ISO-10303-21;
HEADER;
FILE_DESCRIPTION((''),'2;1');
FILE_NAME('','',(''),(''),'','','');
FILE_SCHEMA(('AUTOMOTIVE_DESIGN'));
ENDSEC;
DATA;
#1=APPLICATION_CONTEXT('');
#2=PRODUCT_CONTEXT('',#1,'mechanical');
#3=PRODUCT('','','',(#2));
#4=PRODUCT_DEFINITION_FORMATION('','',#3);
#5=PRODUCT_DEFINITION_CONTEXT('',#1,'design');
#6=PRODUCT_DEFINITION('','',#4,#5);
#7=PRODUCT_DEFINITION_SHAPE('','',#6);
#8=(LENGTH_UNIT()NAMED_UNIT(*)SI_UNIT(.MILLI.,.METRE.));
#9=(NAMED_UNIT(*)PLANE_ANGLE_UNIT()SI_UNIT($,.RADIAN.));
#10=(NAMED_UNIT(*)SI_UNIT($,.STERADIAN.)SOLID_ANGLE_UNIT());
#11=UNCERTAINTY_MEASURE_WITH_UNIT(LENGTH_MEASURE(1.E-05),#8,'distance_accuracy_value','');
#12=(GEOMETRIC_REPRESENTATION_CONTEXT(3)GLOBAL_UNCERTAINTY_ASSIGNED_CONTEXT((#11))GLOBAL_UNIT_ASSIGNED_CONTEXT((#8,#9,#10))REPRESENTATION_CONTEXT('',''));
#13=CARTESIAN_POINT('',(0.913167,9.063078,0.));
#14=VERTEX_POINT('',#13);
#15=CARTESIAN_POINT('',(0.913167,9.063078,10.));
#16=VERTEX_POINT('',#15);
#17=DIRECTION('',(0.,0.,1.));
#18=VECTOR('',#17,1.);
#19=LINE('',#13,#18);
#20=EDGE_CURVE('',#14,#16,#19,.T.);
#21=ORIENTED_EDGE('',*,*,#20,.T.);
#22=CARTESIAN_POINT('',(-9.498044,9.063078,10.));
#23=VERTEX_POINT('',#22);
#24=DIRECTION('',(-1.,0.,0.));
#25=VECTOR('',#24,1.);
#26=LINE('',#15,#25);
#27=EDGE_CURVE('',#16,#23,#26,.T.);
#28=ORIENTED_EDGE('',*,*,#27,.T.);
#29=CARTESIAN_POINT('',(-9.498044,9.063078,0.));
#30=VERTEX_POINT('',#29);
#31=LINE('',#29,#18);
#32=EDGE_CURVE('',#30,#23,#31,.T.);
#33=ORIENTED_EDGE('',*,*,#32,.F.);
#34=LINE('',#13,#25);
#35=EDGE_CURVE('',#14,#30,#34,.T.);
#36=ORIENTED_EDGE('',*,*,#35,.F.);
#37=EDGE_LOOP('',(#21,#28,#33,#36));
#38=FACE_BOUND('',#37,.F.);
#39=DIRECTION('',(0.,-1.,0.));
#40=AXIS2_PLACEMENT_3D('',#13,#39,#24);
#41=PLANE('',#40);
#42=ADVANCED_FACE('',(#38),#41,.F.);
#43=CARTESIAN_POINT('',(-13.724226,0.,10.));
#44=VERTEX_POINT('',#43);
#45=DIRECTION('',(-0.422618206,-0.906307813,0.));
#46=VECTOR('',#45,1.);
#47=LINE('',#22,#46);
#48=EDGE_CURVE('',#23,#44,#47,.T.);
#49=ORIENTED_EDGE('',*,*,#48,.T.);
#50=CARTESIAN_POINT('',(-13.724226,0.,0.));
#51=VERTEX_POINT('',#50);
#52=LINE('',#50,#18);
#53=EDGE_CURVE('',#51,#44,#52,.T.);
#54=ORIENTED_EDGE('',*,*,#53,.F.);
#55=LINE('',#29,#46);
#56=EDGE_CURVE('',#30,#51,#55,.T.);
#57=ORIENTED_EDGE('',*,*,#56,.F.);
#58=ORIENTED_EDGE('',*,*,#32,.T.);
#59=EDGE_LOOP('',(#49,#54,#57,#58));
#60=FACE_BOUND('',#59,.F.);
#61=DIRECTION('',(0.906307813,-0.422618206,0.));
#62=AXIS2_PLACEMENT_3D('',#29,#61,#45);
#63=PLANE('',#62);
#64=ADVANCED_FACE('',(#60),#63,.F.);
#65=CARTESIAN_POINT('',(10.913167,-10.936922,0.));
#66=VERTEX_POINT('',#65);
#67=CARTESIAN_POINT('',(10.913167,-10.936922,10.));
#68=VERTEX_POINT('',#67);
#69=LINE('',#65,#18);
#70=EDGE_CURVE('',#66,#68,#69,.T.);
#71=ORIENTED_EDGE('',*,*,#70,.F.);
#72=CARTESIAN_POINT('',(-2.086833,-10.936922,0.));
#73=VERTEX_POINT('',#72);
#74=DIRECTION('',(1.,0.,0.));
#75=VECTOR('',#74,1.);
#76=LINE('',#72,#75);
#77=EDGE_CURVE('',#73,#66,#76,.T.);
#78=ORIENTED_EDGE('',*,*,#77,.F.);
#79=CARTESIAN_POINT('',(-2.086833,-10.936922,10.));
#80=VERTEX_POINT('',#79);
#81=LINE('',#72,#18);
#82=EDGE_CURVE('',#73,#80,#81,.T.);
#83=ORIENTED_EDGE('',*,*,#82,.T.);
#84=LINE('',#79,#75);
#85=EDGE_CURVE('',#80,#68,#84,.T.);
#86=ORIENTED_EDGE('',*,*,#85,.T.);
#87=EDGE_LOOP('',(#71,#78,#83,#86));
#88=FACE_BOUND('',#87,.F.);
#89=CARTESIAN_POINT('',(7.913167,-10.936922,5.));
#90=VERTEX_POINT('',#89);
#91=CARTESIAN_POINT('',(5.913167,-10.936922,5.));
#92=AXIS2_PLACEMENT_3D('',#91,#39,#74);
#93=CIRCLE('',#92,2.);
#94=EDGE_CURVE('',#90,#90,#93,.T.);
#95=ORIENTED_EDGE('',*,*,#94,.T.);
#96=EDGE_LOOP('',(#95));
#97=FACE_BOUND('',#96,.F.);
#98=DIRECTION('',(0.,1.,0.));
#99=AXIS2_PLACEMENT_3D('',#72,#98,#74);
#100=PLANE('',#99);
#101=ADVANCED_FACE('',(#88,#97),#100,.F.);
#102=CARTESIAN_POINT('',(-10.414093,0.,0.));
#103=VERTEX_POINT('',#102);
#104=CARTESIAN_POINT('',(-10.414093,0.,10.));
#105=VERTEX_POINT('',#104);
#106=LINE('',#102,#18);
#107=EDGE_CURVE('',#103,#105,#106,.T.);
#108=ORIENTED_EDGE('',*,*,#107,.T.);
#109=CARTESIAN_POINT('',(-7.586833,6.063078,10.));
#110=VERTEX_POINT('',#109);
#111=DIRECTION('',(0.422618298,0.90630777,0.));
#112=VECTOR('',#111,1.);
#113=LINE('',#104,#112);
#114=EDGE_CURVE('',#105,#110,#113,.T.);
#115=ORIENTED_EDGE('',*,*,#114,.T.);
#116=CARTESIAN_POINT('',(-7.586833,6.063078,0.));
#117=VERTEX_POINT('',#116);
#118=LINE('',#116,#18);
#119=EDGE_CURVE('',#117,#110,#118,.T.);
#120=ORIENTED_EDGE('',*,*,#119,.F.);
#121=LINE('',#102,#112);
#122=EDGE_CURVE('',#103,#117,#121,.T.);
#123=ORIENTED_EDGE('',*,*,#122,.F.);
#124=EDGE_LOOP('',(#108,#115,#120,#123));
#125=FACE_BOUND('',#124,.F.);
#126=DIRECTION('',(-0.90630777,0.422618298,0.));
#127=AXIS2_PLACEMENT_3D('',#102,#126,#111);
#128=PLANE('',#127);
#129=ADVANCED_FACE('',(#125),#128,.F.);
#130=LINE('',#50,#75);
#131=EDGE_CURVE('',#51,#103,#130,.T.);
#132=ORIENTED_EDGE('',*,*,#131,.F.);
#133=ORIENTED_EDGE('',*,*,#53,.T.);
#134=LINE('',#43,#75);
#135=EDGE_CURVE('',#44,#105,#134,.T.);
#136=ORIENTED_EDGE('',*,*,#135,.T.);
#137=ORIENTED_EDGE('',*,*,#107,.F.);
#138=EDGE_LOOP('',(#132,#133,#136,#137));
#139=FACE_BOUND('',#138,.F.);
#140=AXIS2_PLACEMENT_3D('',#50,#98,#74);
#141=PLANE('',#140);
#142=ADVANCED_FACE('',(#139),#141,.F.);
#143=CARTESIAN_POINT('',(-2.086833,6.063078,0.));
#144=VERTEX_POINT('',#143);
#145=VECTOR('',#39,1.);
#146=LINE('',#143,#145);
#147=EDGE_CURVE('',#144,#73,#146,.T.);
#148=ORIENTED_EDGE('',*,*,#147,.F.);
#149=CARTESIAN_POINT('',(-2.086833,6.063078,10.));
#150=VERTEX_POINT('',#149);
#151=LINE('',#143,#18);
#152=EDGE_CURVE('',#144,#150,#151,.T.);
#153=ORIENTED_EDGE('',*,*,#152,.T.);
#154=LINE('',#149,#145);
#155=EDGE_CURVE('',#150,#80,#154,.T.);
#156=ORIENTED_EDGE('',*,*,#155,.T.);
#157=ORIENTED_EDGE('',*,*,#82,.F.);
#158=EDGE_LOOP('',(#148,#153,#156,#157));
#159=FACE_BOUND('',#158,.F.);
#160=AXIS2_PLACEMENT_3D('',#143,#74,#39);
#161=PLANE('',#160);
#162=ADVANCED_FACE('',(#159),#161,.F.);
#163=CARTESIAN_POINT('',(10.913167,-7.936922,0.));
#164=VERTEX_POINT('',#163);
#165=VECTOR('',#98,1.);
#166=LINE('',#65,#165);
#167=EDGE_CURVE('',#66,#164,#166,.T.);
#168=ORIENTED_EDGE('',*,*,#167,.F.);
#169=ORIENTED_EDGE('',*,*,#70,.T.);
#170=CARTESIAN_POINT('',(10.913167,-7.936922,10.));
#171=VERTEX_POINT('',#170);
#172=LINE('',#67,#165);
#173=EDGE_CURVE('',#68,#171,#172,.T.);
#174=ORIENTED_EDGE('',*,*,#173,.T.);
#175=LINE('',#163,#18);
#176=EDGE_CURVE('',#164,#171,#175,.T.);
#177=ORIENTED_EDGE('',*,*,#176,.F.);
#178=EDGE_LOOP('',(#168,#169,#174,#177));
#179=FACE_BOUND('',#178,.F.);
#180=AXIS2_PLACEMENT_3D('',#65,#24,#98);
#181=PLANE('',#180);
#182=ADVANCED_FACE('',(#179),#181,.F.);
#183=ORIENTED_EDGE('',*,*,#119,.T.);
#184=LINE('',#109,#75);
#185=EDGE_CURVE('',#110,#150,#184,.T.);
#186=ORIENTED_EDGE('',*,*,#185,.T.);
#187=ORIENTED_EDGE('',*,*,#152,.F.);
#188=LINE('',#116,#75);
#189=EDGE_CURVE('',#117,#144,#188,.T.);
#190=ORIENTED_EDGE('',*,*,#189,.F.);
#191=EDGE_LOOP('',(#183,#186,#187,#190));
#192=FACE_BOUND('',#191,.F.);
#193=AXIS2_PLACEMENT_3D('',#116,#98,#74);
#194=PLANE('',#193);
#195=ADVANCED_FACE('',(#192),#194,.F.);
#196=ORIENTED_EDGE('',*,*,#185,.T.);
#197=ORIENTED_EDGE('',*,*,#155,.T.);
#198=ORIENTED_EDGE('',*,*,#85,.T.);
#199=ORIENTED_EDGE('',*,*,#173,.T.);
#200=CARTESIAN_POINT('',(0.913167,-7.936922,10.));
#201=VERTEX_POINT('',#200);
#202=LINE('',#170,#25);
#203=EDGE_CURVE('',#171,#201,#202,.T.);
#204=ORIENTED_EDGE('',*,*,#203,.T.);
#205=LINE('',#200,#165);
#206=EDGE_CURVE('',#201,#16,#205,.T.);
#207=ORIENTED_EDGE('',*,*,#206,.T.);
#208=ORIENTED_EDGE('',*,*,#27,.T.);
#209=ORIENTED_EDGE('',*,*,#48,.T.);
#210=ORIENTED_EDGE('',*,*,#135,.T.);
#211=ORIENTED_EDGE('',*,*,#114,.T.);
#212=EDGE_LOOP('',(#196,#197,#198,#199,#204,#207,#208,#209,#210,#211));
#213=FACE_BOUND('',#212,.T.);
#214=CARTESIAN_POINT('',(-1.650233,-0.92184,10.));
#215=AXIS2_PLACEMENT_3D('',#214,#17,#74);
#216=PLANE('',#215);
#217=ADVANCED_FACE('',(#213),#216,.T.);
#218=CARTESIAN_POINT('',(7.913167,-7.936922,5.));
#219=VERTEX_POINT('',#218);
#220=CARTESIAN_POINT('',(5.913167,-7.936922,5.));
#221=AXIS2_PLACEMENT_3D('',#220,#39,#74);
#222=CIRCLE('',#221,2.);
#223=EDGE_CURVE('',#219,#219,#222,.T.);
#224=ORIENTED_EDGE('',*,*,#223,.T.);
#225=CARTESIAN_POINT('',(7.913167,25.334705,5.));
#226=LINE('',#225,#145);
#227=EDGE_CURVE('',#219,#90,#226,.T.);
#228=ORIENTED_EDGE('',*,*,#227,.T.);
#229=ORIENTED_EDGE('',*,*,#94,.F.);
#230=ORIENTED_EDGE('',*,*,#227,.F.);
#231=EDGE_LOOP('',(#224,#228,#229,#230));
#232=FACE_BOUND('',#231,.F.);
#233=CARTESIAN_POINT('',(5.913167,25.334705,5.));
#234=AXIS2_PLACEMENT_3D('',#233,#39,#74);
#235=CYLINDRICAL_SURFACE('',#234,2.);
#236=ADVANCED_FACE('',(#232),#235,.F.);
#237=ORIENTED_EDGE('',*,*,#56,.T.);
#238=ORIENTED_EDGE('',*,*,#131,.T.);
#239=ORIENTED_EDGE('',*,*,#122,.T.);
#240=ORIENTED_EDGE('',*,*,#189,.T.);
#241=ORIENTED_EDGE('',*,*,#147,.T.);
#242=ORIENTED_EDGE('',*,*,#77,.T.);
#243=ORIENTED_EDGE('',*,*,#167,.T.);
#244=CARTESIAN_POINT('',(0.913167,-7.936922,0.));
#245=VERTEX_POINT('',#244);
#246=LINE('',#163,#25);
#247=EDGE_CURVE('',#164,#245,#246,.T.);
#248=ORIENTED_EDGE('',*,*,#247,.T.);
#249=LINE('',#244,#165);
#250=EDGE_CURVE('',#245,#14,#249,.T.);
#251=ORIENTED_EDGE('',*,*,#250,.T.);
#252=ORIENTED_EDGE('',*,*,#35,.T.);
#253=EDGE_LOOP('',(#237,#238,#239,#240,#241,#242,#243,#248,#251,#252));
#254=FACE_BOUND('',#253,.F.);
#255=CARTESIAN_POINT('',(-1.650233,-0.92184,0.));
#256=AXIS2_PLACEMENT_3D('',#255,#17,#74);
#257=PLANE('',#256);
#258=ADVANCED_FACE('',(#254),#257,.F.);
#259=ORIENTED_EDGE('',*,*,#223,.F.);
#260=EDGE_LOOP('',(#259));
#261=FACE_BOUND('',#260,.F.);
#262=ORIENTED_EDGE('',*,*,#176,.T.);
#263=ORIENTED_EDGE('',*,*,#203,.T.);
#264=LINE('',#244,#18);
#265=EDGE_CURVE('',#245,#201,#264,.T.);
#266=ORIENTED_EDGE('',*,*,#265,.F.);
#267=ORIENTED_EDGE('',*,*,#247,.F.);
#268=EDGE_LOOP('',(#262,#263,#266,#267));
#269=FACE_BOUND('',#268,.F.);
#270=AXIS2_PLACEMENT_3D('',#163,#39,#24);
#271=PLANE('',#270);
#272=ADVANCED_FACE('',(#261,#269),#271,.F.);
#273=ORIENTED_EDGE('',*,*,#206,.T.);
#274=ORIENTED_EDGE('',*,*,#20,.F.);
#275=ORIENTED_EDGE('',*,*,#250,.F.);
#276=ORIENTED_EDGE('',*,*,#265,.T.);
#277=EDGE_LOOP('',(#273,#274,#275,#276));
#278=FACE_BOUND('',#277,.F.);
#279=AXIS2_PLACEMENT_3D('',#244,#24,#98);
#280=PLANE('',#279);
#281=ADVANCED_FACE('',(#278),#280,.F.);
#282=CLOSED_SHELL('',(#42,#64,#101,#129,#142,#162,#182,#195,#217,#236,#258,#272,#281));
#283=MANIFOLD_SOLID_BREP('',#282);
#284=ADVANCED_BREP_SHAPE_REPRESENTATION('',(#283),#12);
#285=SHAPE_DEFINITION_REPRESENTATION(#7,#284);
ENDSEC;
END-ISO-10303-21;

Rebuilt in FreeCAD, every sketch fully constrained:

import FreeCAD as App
import Part
import Sketcher

V = App.Vector
Q = App.Units.Quantity

doc = App.newDocument("Part")
body = doc.addObject("PartDesign::Body", "Body")

sketch1 = body.newObject("Sketcher::SketchObject", "Sketch")
sketch1.AttachmentSupport = (doc.getObject("XY_Plane"), [""])
sketch1.MapMode = "FlatFace"
sketch1.addGeometry([
    Part.LineSegment(V(-2.1, -10.9, 0), V(10.9, -10.9, 0)),
    Part.LineSegment(V(10.9, -10.9, 0), V(10.9, -7.9, 0)),
    Part.LineSegment(V(10.9, -7.9, 0), V(0.9, -7.9, 0)),
    Part.LineSegment(V(0.9, -7.9, 0), V(0.9, 9.1, 0)),
    Part.LineSegment(V(0.9, 9.1, 0), V(-9.5, 9.1, 0)),
    Part.LineSegment(V(-9.5, 9.1, 0), V(-13.7, 0, 0)),
    Part.LineSegment(V(-13.7, 0, 0), V(-10.4, 0, 0)),
    Part.LineSegment(V(-10.4, 0, 0), V(-7.6, 6.1, 0)),
    Part.LineSegment(V(-7.6, 6.1, 0), V(-2.1, 6.1, 0)),
    Part.LineSegment(V(-2.1, 6.1, 0), V(-2.1, -10.9, 0)),
], False)
sketch1.addConstraint([
    Sketcher.Constraint("Coincident", 0, 2, 1, 1),
    Sketcher.Constraint("Coincident", 1, 2, 2, 1),
    Sketcher.Constraint("Coincident", 2, 2, 3, 1),
    Sketcher.Constraint("Coincident", 3, 2, 4, 1),
    Sketcher.Constraint("Coincident", 4, 2, 5, 1),
    Sketcher.Constraint("Coincident", 5, 2, 6, 1),
    Sketcher.Constraint("Coincident", 6, 2, 7, 1),
    Sketcher.Constraint("Coincident", 7, 2, 8, 1),
    Sketcher.Constraint("Coincident", 8, 2, 9, 1),
    Sketcher.Constraint("Coincident", 9, 2, 0, 1),
    Sketcher.Constraint("Horizontal", 0),
    Sketcher.Constraint("Vertical", 1),
    Sketcher.Constraint("Horizontal", 2),
    Sketcher.Constraint("Vertical", 3),
    Sketcher.Constraint("Horizontal", 4),
    Sketcher.Constraint("Horizontal", 6),
    Sketcher.Constraint("Horizontal", 8),
    Sketcher.Constraint("Vertical", 9),
    Sketcher.Constraint("PointOnObject", 5, 2, -1),
    Sketcher.Constraint("Parallel", 5, 7),
    Sketcher.Constraint("Equal", 3, 9),
    Sketcher.Constraint("DistanceX", 0, 1, 0, 2, Q("13 mm")),
    Sketcher.Constraint("DistanceX", 2, 2, 2, 1, Q("10 mm")),
    Sketcher.Constraint("DistanceY", 1, 1, 1, 2, Q("3 mm")),
    Sketcher.Constraint("DistanceY", 3, 1, 3, 2, Q("17 mm")),
    Sketcher.Constraint("Angle", 5, Q("-114.999996 deg")),
    Sketcher.Constraint("Distance", 5, Q("10 mm")),
    Sketcher.Constraint("DistanceX", 8, 1, 8, 2, Q("5.5 mm")),
    Sketcher.Constraint("DistanceX", 4, 2, 4, 1, Q("10.411211 mm")),
    Sketcher.Constraint("DistanceX", -1, 1, 0, 2, Q("10.913167 mm")),
])
pad1 = body.newObject("PartDesign::Pad", "Pad")
pad1.Profile = sketch1
pad1.Length = 10

sketch2 = body.newObject("Sketcher::SketchObject", "Sketch001")
sketch2.AttachmentSupport = (doc.getObject("XZ_Plane"), [""])
sketch2.MapMode = "FlatFace"
sketch2.AttachmentOffset = App.Placement(V(0, 0, 7.936922), App.Rotation())
sketch2.addGeometry(Part.Circle(V(5.9, 5, 0), V(0, 0, 1), 2), False)
sketch2.addConstraint([
    Sketcher.Constraint("Diameter", 0, Q("4 mm")),
    Sketcher.Constraint("DistanceY", -1, 1, 0, 3, Q("5 mm")),
    Sketcher.Constraint("DistanceX", -1, 1, 0, 3, Q("5.913167 mm")),
])
doc.recompute()
hole = body.newObject("PartDesign::Hole", "Hole")
hole.Profile = sketch2
hole.ThreadType = "None"
hole.Diameter = 4
hole.DepthType = "ThroughAll"
hole.Reversed = True

doc.recompute()
